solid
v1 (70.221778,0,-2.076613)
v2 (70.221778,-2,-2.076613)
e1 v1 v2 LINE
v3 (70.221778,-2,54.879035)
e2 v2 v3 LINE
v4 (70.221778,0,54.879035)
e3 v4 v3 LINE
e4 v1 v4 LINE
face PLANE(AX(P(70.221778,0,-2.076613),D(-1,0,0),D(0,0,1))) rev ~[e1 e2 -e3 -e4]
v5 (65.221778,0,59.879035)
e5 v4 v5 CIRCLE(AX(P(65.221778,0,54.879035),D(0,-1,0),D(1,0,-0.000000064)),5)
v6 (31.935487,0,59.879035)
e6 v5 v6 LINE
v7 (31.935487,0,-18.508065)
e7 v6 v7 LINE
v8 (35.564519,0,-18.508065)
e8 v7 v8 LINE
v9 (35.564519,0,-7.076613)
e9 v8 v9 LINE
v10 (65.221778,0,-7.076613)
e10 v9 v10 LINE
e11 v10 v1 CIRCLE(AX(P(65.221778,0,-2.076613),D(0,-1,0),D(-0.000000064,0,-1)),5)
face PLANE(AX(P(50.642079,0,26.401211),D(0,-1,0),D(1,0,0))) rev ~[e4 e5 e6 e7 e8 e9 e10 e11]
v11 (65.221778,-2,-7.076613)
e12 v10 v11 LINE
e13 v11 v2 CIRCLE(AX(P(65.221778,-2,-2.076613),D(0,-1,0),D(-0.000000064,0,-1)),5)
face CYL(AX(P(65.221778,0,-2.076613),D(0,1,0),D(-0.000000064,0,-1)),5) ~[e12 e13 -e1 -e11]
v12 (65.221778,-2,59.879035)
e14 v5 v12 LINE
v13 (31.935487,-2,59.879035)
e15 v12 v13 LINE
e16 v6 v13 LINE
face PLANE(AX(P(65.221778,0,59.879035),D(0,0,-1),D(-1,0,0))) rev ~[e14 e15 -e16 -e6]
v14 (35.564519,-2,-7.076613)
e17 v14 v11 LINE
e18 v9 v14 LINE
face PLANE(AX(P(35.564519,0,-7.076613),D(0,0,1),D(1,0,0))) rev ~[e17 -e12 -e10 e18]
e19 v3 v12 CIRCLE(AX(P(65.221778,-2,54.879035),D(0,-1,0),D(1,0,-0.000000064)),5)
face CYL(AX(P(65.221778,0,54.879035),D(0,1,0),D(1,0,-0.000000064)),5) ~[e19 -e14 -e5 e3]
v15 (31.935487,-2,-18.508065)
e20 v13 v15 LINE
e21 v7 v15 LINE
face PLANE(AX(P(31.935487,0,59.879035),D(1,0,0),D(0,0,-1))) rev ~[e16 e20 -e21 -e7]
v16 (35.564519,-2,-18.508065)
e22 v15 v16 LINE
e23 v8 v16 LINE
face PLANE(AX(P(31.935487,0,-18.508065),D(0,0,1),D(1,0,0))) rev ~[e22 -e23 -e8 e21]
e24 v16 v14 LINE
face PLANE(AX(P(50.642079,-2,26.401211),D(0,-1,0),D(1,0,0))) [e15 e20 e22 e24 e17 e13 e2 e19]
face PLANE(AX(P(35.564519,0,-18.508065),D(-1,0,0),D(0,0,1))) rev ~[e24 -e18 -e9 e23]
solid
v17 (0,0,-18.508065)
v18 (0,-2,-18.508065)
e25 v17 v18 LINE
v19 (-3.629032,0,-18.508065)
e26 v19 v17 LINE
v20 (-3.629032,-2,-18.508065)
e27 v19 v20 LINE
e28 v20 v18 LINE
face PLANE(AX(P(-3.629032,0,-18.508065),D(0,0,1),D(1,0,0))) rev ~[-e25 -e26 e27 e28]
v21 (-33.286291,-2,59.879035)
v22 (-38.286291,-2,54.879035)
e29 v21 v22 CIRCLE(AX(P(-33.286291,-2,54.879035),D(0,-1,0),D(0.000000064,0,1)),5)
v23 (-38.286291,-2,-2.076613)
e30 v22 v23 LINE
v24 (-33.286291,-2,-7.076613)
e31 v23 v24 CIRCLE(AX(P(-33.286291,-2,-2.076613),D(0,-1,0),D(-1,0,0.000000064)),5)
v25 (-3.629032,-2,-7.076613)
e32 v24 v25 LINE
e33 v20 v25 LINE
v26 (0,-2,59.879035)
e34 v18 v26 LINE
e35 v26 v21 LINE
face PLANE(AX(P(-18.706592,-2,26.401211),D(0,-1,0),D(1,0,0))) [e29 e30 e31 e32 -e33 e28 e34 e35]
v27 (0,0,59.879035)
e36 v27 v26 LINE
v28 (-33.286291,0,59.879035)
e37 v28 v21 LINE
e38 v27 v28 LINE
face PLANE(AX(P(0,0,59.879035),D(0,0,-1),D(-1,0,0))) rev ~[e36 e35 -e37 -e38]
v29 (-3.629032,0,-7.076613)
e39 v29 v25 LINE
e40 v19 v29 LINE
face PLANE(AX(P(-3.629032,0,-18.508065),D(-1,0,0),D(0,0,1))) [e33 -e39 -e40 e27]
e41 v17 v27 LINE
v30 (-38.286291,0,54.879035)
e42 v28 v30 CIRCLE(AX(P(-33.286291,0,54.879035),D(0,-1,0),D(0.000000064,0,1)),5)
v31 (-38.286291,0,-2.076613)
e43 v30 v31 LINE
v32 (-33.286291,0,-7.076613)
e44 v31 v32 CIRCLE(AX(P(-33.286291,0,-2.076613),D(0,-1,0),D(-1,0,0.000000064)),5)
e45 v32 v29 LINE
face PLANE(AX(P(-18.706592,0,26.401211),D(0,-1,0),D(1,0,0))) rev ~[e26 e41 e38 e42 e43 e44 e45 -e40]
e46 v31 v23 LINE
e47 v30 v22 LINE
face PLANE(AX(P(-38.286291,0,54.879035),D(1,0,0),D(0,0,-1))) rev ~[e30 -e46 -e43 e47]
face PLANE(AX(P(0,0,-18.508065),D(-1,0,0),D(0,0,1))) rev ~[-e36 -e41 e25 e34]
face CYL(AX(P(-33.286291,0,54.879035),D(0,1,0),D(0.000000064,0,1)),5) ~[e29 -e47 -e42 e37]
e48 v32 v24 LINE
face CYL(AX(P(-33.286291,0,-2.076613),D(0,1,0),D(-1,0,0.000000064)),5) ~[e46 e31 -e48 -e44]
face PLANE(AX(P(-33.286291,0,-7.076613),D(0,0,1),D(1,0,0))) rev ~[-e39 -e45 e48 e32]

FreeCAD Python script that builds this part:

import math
import FreeCAD as App
import Part
import Sketcher

V = App.Vector
Q = App.Units.Quantity

doc = App.newDocument("Part")
body = doc.addObject("PartDesign::Body", "Body")
body.AllowCompound = True

# Sketch on XZ plane
sketch1 = body.newObject("Sketcher::SketchObject", "Sketch")
sketch1.AttachmentSupport = (doc.getObject("XZ_Plane"), [""])
sketch1.MapMode = "FlatFace"
sketch1.addGeometry(Part.LineSegment(V(0, 59.879035, 0), V(-33.286291, 59.879035, 0)), False)
sketch1.addGeometry(Part.ArcOfCircle(Part.Circle(V(-33.286291, 54.879035, 0), V(0, 0, 1), 5), math.radians(89.999996), math.radians(180.000004)), False)
sketch1.addGeometry(Part.LineSegment(V(-38.286291, 54.879035, 0), V(-38.286291, -2.076613, 0)), False)
sketch1.addGeometry(Part.ArcOfCircle(Part.Circle(V(-33.286291, -2.076613, 0), V(0, 0, 1), 5), math.radians(179.999996), math.radians(270.000004)), False)
sketch1.addGeometry(Part.LineSegment(V(-33.286291, -7.076613, 0), V(-3.629032, -7.076613, 0)), False)
sketch1.addGeometry(Part.LineSegment(V(-3.629032, -7.076613, 0), V(-3.629032, -18.508065, 0)), False)
sketch1.addGeometry(Part.LineSegment(V(-3.629032, -18.508065, 0), V(0, -18.508065, 0)), False)
sketch1.addGeometry(Part.LineSegment(V(0, -18.508065, 0), V(0, 59.879035, 0)), False)
sketch1.addGeometry(Part.ArcOfCircle(Part.Circle(V(65.221778, 54.879035, 0), V(0, 0, 1), 5), math.radians(-0.000004), math.radians(90.000004)), False)
sketch1.addGeometry(Part.LineSegment(V(65.221778, 59.879035, 0), V(31.935487, 59.879035, 0)), False)
sketch1.addGeometry(Part.LineSegment(V(31.935487, 59.879035, 0), V(31.935487, -18.508065, 0)), False)
sketch1.addGeometry(Part.LineSegment(V(31.935487, -18.508065, 0), V(35.564519, -18.508065, 0)), False)
sketch1.addGeometry(Part.LineSegment(V(35.564519, -18.508065, 0), V(35.564519, -7.076613, 0)), False)
sketch1.addGeometry(Part.LineSegment(V(35.564519, -7.076613, 0), V(65.221778, -7.076613, 0)), False)
sketch1.addGeometry(Part.ArcOfCircle(Part.Circle(V(65.221778, -2.076613, 0), V(0, 0, 1), 5), math.radians(-90.000004), math.radians(0.000004)), False)
sketch1.addGeometry(Part.LineSegment(V(70.221778, -2.076613, 0), V(70.221778, 54.879035, 0)), False)
sketch1.addConstraint(Sketcher.Constraint("Tangent", 0, 2, 1, 1))
sketch1.addConstraint(Sketcher.Constraint("Tangent", 1, 2, 2, 1))
sketch1.addConstraint(Sketcher.Constraint("Tangent", 2, 2, 3, 1))
sketch1.addConstraint(Sketcher.Constraint("Tangent", 3, 2, 4, 1))
sketch1.addConstraint(Sketcher.Constraint("Coincident", 4, 2, 5, 1))
sketch1.addConstraint(Sketcher.Constraint("Coincident", 5, 2, 6, 1))
sketch1.addConstraint(Sketcher.Constraint("Coincident", 6, 2, 7, 1))
sketch1.addConstraint(Sketcher.Constraint("Coincident", 7, 2, 0, 1))
sketch1.addConstraint(Sketcher.Constraint("Tangent", 8, 2, 9, 1))
sketch1.addConstraint(Sketcher.Constraint("Coincident", 9, 2, 10, 1))
sketch1.addConstraint(Sketcher.Constraint("Coincident", 10, 2, 11, 1))
sketch1.addConstraint(Sketcher.Constraint("Coincident", 11, 2, 12, 1))
sketch1.addConstraint(Sketcher.Constraint("Coincident", 12, 2, 13, 1))
sketch1.addConstraint(Sketcher.Constraint("Tangent", 13, 2, 14, 1))
sketch1.addConstraint(Sketcher.Constraint("Tangent", 14, 2, 15, 1))
sketch1.addConstraint(Sketcher.Constraint("Tangent", 15, 2, 8, 1))
sketch1.addConstraint(Sketcher.Constraint("Horizontal", 0))
sketch1.addConstraint(Sketcher.Constraint("Vertical", 2))
sketch1.addConstraint(Sketcher.Constraint("Horizontal", 4))
sketch1.addConstraint(Sketcher.Constraint("Vertical", 5))
sketch1.addConstraint(Sketcher.Constraint("Horizontal", 6))
sketch1.addConstraint(Sketcher.Constraint("Vertical", 7))
sketch1.addConstraint(Sketcher.Constraint("Horizontal", 9))
sketch1.addConstraint(Sketcher.Constraint("Vertical", 10))
sketch1.addConstraint(Sketcher.Constraint("Horizontal", 11))
sketch1.addConstraint(Sketcher.Constraint("Vertical", 12))
sketch1.addConstraint(Sketcher.Constraint("Horizontal", 13))
sketch1.addConstraint(Sketcher.Constraint("Vertical", 15))
sketch1.addConstraint(Sketcher.Constraint("Equal", 1, 3))
sketch1.addConstraint(Sketcher.Constraint("Equal", 3, 8))
sketch1.addConstraint(Sketcher.Constraint("Equal", 8, 14))
sketch1.addConstraint(Sketcher.Constraint("PointOnObject", 6, 2, -2))
sketch1.addConstraint(Sketcher.Constraint("Horizontal", 1, 3, 8, 3))
sketch1.addConstraint(Sketcher.Constraint("Horizontal", 3, 3, 14, 3))
sketch1.addConstraint(Sketcher.Constraint("Horizontal", 6, 2, 10, 2))
sketch1.addConstraint(Sketcher.Constraint("Equal", 0, 9))
sketch1.addConstraint(Sketcher.Constraint("Equal", 6, 11))
sketch1.addConstraint(Sketcher.Constraint("Radius", 1, Q("5 mm")))
sketch1.addConstraint(Sketcher.Constraint("DistanceY", 7, 1, 7, 2, Q("78.3871 mm")))
sketch1.addConstraint(Sketcher.Constraint("DistanceX", 0, 2, 0, 1, Q("33.286291 mm")))
sketch1.addConstraint(Sketcher.Constraint("DistanceX", 4, 1, 4, 2, Q("29.657259 mm")))
sketch1.addConstraint(Sketcher.Constraint("DistanceY", 2, 2, 2, 1, Q("56.955648 mm")))
sketch1.addConstraint(Sketcher.Constraint("DistanceX", -1, 1, 8, 3, Q("65.221778 mm")))
sketch1.addConstraint(Sketcher.Constraint("DistanceY", -1, 1, 1, 3, Q("54.879035 mm")))
pad1 = body.newObject("PartDesign::Pad", "Pad")
pad1.Profile = sketch1
pad1.Length = 2

doc.recompute()
